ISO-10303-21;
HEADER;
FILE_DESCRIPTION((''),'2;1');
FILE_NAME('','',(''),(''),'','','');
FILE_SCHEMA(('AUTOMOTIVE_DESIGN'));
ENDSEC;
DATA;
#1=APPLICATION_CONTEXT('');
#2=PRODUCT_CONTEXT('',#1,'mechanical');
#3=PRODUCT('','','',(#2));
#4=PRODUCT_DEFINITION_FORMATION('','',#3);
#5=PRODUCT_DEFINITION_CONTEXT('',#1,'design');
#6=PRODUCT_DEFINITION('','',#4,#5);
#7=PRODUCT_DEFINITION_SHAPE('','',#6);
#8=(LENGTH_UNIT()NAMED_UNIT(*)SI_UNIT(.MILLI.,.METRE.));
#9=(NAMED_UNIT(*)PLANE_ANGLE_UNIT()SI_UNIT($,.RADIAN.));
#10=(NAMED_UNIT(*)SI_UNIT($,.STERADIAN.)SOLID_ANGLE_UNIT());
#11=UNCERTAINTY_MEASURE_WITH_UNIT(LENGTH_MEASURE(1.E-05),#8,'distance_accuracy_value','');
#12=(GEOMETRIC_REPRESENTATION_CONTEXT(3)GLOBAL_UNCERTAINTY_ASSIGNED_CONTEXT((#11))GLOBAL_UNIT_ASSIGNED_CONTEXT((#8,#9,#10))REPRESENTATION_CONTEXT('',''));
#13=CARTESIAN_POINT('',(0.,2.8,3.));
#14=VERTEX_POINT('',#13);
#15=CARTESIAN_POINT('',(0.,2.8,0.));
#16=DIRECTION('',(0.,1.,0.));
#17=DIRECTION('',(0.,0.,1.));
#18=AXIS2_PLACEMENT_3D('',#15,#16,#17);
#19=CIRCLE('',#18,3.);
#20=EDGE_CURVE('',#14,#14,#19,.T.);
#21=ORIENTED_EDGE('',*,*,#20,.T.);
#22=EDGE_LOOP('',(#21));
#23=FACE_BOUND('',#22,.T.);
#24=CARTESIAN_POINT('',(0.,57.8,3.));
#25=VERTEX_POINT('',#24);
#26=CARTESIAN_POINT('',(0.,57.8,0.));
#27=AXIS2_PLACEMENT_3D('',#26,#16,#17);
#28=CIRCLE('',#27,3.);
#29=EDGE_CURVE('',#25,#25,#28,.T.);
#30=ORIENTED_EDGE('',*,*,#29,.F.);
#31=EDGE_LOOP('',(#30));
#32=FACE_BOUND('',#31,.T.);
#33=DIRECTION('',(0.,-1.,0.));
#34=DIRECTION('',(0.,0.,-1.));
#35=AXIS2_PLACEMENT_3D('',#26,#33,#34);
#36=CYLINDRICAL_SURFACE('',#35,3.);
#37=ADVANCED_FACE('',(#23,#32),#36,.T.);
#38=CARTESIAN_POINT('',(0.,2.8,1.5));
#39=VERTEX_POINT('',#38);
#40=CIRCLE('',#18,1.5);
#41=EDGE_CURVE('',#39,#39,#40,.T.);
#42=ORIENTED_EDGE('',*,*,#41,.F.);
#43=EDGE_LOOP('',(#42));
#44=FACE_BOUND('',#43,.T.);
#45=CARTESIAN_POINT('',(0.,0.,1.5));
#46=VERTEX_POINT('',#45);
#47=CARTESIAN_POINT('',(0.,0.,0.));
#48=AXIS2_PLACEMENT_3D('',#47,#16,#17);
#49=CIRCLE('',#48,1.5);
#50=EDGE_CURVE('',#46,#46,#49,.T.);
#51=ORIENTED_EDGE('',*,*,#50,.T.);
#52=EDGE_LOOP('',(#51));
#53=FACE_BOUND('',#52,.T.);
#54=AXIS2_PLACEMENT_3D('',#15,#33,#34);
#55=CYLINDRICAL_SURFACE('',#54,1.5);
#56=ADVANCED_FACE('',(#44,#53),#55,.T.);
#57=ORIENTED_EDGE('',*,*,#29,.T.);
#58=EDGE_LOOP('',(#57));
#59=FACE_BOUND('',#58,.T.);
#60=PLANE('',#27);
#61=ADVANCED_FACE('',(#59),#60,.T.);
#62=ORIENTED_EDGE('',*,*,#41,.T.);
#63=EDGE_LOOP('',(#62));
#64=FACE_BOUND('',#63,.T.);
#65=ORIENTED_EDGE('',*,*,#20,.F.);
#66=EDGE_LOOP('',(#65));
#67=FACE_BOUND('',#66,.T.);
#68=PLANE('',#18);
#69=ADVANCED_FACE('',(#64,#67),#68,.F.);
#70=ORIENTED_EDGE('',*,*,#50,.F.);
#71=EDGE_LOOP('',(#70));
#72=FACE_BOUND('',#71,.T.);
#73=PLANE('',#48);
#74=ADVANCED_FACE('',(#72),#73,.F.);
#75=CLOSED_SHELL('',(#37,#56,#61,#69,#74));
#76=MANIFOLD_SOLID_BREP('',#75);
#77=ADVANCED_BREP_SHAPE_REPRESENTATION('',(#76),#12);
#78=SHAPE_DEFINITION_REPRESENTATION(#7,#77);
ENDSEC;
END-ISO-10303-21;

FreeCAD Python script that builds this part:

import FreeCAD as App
import Part
import Sketcher
from FreeCAD import Vector
Q = App.Units.Quantity

doc = App.newDocument("Part")
body = doc.addObject("PartDesign::Body", "Body")

sketch1 = body.newObject("Sketcher::SketchObject", "Sketch")
sketch1.AttachmentSupport = (doc.getObject("XZ_Plane"), [""])
sketch1.MapMode = "FlatFace"
sketch1.addGeometry(Part.Circle(Vector(0, 0, 0), Vector(0, 0, 1), 1.5), False)
sketch1.addConstraint(Sketcher.Constraint("Coincident", 0, 3, -1, 1))
sketch1.addConstraint(Sketcher.Constraint("Diameter", 0, Q("3 mm")))
pad1 = body.newObject("PartDesign::Pad", "Pad")
pad1.Profile = sketch1
pad1.Length = 2.8
pad1.Reversed = True

sketch2 = body.newObject("Sketcher::SketchObject", "Sketch001")
sketch2.AttachmentSupport = (doc.getObject("XZ_Plane"), [""])
sketch2.MapMode = "FlatFace"
sketch2.AttachmentOffset = App.Placement(Vector(0, 0, -2.8), App.Rotation())
sketch2.addGeometry(Part.Circle(Vector(0, 0, 0), Vector(0, 0, 1), 3), False)
sketch2.addConstraint(Sketcher.Constraint("Coincident", 0, 3, -1, 1))
sketch2.addConstraint(Sketcher.Constraint("Diameter", 0, Q("6 mm")))
pad2 = body.newObject("PartDesign::Pad", "Pad001")
pad2.Profile = sketch2
pad2.Length = 55
pad2.Reversed = True

doc.recompute()
